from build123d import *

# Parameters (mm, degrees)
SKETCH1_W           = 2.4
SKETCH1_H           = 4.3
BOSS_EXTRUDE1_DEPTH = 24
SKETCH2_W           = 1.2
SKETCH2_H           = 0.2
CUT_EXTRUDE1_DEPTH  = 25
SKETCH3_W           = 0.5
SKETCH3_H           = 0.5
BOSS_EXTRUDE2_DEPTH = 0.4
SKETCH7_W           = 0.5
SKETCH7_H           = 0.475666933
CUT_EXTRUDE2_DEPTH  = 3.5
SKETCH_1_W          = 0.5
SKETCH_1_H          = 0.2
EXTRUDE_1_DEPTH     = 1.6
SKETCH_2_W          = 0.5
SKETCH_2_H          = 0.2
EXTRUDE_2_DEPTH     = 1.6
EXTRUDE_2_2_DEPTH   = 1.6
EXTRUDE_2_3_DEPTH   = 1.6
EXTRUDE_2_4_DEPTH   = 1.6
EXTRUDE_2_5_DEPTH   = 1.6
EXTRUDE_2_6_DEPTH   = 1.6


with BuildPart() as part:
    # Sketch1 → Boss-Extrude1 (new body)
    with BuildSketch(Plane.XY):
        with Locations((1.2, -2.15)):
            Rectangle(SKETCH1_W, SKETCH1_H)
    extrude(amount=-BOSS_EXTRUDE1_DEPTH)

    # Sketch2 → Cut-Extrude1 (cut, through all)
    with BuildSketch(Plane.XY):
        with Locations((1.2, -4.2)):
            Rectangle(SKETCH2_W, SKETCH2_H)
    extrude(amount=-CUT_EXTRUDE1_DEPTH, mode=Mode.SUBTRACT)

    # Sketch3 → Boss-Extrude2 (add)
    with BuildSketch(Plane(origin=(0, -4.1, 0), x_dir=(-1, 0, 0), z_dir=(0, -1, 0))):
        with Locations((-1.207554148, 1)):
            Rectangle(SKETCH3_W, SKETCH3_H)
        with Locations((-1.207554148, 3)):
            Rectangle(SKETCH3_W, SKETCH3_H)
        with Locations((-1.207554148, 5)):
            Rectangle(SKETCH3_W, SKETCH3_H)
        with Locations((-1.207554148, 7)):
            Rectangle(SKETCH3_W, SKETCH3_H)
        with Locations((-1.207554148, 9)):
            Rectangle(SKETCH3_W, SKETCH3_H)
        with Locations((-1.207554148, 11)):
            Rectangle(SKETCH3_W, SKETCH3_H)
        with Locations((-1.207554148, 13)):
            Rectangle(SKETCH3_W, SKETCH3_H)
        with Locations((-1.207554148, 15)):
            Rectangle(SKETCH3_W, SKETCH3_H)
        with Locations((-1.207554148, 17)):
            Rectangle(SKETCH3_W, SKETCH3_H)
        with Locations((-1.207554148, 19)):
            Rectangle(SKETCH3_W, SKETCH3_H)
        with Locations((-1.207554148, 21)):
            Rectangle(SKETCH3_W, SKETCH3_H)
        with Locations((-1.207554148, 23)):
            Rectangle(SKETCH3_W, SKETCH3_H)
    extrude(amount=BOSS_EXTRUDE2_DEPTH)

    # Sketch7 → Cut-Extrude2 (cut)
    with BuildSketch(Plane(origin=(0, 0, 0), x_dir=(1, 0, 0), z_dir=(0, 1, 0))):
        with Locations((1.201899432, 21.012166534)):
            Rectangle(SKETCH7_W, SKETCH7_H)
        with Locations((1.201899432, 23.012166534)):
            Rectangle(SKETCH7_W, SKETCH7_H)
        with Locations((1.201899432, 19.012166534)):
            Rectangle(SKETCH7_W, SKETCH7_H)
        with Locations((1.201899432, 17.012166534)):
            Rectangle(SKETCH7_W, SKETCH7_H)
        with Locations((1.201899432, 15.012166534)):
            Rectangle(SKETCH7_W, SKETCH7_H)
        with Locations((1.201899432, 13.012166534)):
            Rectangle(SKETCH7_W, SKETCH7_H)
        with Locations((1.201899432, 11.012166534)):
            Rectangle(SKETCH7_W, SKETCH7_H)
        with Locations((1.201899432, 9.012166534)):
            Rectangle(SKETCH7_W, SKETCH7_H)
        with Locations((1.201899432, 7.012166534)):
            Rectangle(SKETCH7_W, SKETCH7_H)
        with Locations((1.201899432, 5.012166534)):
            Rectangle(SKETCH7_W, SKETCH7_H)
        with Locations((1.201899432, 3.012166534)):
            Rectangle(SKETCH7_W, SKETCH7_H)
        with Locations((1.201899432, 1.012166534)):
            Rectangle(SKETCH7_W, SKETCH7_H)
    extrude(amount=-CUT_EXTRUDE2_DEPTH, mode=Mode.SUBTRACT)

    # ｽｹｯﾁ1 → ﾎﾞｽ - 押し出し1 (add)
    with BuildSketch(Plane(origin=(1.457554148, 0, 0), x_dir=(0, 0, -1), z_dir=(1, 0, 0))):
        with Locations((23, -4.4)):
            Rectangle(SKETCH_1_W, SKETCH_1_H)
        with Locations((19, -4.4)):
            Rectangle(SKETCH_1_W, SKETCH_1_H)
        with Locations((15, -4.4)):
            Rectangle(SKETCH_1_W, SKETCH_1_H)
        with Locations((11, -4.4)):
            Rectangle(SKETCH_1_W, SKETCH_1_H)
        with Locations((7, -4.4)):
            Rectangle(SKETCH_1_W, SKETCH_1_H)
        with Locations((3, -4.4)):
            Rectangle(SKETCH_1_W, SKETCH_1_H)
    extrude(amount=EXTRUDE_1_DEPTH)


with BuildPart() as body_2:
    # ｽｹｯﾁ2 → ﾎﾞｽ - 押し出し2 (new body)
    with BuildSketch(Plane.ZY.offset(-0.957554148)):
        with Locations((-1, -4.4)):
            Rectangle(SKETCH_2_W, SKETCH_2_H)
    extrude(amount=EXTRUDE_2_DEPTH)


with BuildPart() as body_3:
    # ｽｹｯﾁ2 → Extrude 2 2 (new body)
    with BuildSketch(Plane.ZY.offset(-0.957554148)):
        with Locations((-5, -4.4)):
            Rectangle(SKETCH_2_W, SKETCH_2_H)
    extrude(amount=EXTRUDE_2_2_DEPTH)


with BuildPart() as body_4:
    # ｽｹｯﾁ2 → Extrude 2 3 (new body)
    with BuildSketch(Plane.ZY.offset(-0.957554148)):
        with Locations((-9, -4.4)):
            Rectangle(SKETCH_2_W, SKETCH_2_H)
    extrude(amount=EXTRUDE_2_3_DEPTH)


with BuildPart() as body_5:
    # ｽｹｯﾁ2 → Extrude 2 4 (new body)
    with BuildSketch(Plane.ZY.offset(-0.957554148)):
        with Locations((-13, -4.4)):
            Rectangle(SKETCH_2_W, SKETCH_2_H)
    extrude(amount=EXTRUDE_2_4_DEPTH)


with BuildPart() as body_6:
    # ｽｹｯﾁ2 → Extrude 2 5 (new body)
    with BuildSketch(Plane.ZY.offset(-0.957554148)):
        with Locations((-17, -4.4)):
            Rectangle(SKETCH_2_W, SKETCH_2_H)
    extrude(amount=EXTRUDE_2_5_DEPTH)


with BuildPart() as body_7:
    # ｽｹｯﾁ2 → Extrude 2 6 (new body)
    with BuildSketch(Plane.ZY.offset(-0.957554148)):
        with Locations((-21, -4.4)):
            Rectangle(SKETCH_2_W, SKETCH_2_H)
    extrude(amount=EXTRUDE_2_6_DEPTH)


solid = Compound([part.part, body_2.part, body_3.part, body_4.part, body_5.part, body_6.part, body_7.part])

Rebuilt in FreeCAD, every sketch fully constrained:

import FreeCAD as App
import Part
import Sketcher
Q = App.Units.Quantity

doc = App.newDocument("Part")
params = doc.addObject("Spreadsheet::Sheet", "Params")
for row, (alias, value) in enumerate([
    ("sketch1_width", "2.4 mm"),
    ("sketch1_height", "4.3 mm"),
    ("pad1_length", "24 mm"),
    ("sketch2_width", "1.2 mm"),
    ("sketch2_height", "0.2 mm"),
    ("sketch3_width", "0.5 mm"),
    ("pad2_length", "0.4 mm"),
    ("sketch4_width", "0.5 mm"),
    ("pocket2_length", "3.5 mm"),
    ("sketch5_width", "0.2 mm"),
    ("sketch5_height", "0.5 mm"),
    ("pad3_length", "1.6 mm"),
    ("sketch6_width", "0.2 mm"),
    ("sketch6_height", "0.5 mm"),
    ("pad4_length", "1.6 mm"),
    ("sketch7_width", "0.2 mm"),
    ("sketch7_height", "0.5 mm"),
    ("pad5_length", "1.6 mm"),
    ("sketch8_width", "0.2 mm"),
    ("sketch8_height", "0.5 mm"),
    ("pad6_length", "1.6 mm"),
    ("sketch9_width", "0.2 mm"),
    ("sketch9_height", "0.5 mm"),
    ("pad7_length", "1.6 mm"),
    ("sketch10_width", "0.2 mm"),
    ("sketch10_height", "0.5 mm"),
    ("pad8_length", "1.6 mm"),
    ("sketch11_width", "0.2 mm"),
    ("sketch11_height", "0.5 mm"),
    ("pad9_length", "1.6 mm"),
], start=1):
    params.set(f"A{row}", alias)
    params.set(f"B{row}", "=" + value)
    params.setAlias(f"B{row}", alias)

body = doc.addObject("PartDesign::Body", "Body")

# Sketch on XY plane
sketch1 = body.newObject("Sketcher::SketchObject", "Sketch")
sketch1.AttachmentSupport = (doc.getObject("XY_Plane"), [""])
sketch1.MapMode = "FlatFace"
sketch1.addGeometry([
    Part.LineSegment(App.Vector(0, 0, 0), App.Vector(0, -4.3, 0)),
    Part.LineSegment(App.Vector(0, -4.3, 0), App.Vector(2.4, -4.3, 0)),
    Part.LineSegment(App.Vector(2.4, -4.3, 0), App.Vector(2.4, 0, 0)),
    Part.LineSegment(App.Vector(2.4, 0, 0), App.Vector(0, 0, 0)),
], False)
sketch1.addConstraint([
    Sketcher.Constraint("Coincident", 0, 2, 1, 1),
    Sketcher.Constraint("Coincident", 1, 2, 2, 1),
    Sketcher.Constraint("Coincident", 2, 2, 3, 1),
    Sketcher.Constraint("Coincident", 3, 2, 0, 1),
    Sketcher.Constraint("Vertical", 0),
    Sketcher.Constraint("Horizontal", 1),
    Sketcher.Constraint("Vertical", 2),
    Sketcher.Constraint("Horizontal", 3),
    Sketcher.Constraint("Coincident", 3, 2, -1, 1),
    Sketcher.Constraint("DistanceX", 1, 1, 1, 2, Q("2.4 mm")),
    Sketcher.Constraint("DistanceY", 0, 2, 0, 1, Q("4.3 mm")),
])
sketch1.setExpression("Constraints[9]", "Params.sketch1_width")
sketch1.setExpression("Constraints[10]", "Params.sketch1_height")
pad1 = body.newObject("PartDesign::Pad", "Pad")
pad1.Profile = sketch1
pad1.setExpression("Length", "Params.pad1_length")
pad1.Reversed = True

# Sketch on XY plane
sketch2 = body.newObject("Sketcher::SketchObject", "Sketch001")
sketch2.AttachmentSupport = (doc.getObject("XY_Plane"), [""])
sketch2.MapMode = "FlatFace"
sketch2.addGeometry([
    Part.LineSegment(App.Vector(0.6, -4.1, 0), App.Vector(0.6, -4.3, 0)),
    Part.LineSegment(App.Vector(0.6, -4.3, 0), App.Vector(1.8, -4.3, 0)),
    Part.LineSegment(App.Vector(1.8, -4.3, 0), App.Vector(1.8, -4.1, 0)),
    Part.LineSegment(App.Vector(1.8, -4.1, 0), App.Vector(0.6, -4.1, 0)),
], False)
sketch2.addConstraint([
    Sketcher.Constraint("Coincident", 0, 2, 1, 1),
    Sketcher.Constraint("Coincident", 1, 2, 2, 1),
    Sketcher.Constraint("Coincident", 2, 2, 3, 1),
    Sketcher.Constraint("Coincident", 3, 2, 0, 1),
    Sketcher.Constraint("Vertical", 0),
    Sketcher.Constraint("Horizontal", 1),
    Sketcher.Constraint("Vertical", 2),
    Sketcher.Constraint("Horizontal", 3),
    Sketcher.Constraint("DistanceX", 1, 1, 1, 2, Q("1.2 mm")),
    Sketcher.Constraint("DistanceY", 0, 2, 0, 1, Q("0.2 mm")),
    Sketcher.Constraint("DistanceX", -1, 1, 0, 2, Q("0.6 mm")),
    Sketcher.Constraint("DistanceY", 0, 2, -1, 1, Q("4.3 mm")),
])
sketch2.setExpression("Constraints[8]", "Params.sketch2_width")
sketch2.setExpression("Constraints[9]", "Params.sketch2_height")
pocket1 = body.newObject("PartDesign::Pocket", "Pocket")
pocket1.Profile = sketch2
pocket1.Type = "ThroughAll"

# Sketch on XZ plane
sketch3 = body.newObject("Sketcher::SketchObject", "Sketch002")
sketch3.AttachmentSupport = (doc.getObject("XZ_Plane"), [""])
sketch3.MapMode = "FlatFace"
sketch3.AttachmentOffset = App.Placement(App.Vector(0, 0, 4.1), App.Rotation())
sketch3.addGeometry([
    Part.LineSegment(App.Vector(1.457554, -1.25, 0), App.Vector(1.457554, -0.75, 0)),  # 0
    Part.LineSegment(App.Vector(1.457554, -0.75, 0), App.Vector(0.957554, -0.75, 0)),  # 1
    Part.LineSegment(App.Vector(0.957554, -0.75, 0), App.Vector(0.957554, -1.25, 0)),  # 2
    Part.LineSegment(App.Vector(0.957554, -1.25, 0), App.Vector(1.457554, -1.25, 0)),  # 3
    Part.LineSegment(App.Vector(1.457554, -3.25, 0), App.Vector(1.457554, -2.75, 0)),  # 4
    Part.LineSegment(App.Vector(1.457554, -2.75, 0), App.Vector(0.957554, -2.75, 0)),  # 5
    Part.LineSegment(App.Vector(0.957554, -2.75, 0), App.Vector(0.957554, -3.25, 0)),  # 6
    Part.LineSegment(App.Vector(0.957554, -3.25, 0), App.Vector(1.457554, -3.25, 0)),  # 7
    Part.LineSegment(App.Vector(1.457554, -5.25, 0), App.Vector(1.457554, -4.75, 0)),  # 8
    Part.LineSegment(App.Vector(1.457554, -4.75, 0), App.Vector(0.957554, -4.75, 0)),  # 9
    Part.LineSegment(App.Vector(0.957554, -4.75, 0), App.Vector(0.957554, -5.25, 0)),  # 10
    Part.LineSegment(App.Vector(0.957554, -5.25, 0), App.Vector(1.457554, -5.25, 0)),  # 11
    Part.LineSegment(App.Vector(1.457554, -7.25, 0), App.Vector(1.457554, -6.75, 0)),  # 12
    Part.LineSegment(App.Vector(1.457554, -6.75, 0), App.Vector(0.957554, -6.75, 0)),  # 13
    Part.LineSegment(App.Vector(0.957554, -6.75, 0), App.Vector(0.957554, -7.25, 0)),  # 14
    Part.LineSegment(App.Vector(0.957554, -7.25, 0), App.Vector(1.457554, -7.25, 0)),  # 15
    Part.LineSegment(App.Vector(1.457554, -9.25, 0), App.Vector(1.457554, -8.75, 0)),  # 16
    Part.LineSegment(App.Vector(1.457554, -8.75, 0), App.Vector(0.957554, -8.75, 0)),  # 17
    Part.LineSegment(App.Vector(0.957554, -8.75, 0), App.Vector(0.957554, -9.25, 0)),  # 18
    Part.LineSegment(App.Vector(0.957554, -9.25, 0), App.Vector(1.457554, -9.25, 0)),  # 19
    Part.LineSegment(App.Vector(1.457554, -11.25, 0), App.Vector(1.457554, -10.75, 0)),  # 20
    Part.LineSegment(App.Vector(1.457554, -10.75, 0), App.Vector(0.957554, -10.75, 0)),  # 21
    Part.LineSegment(App.Vector(0.957554, -10.75, 0), App.Vector(0.957554, -11.25, 0)),  # 22
    Part.LineSegment(App.Vector(0.957554, -11.25, 0), App.Vector(1.457554, -11.25, 0)),  # 23
    Part.LineSegment(App.Vector(1.457554, -13.25, 0), App.Vector(1.457554, -12.75, 0)),  # 24
    Part.LineSegment(App.Vector(1.457554, -12.75, 0), App.Vector(0.957554, -12.75, 0)),  # 25
    Part.LineSegment(App.Vector(0.957554, -12.75, 0), App.Vector(0.957554, -13.25, 0)),  # 26
    Part.LineSegment(App.Vector(0.957554, -13.25, 0), App.Vector(1.457554, -13.25, 0)),  # 27
    Part.LineSegment(App.Vector(1.457554, -15.25, 0), App.Vector(1.457554, -14.75, 0)),  # 28
    Part.LineSegment(App.Vector(1.457554, -14.75, 0), App.Vector(0.957554, -14.75, 0)),  # 29
    Part.LineSegment(App.Vector(0.957554, -14.75, 0), App.Vector(0.957554, -15.25, 0)),  # 30
    Part.LineSegment(App.Vector(0.957554, -15.25, 0), App.Vector(1.457554, -15.25, 0)),  # 31
    Part.LineSegment(App.Vector(1.457554, -17.25, 0), App.Vector(1.457554, -16.75, 0)),  # 32
    Part.LineSegment(App.Vector(1.457554, -16.75, 0), App.Vector(0.957554, -16.75, 0)),  # 33
    Part.LineSegment(App.Vector(0.957554, -16.75, 0), App.Vector(0.957554, -17.25, 0)),  # 34
    Part.LineSegment(App.Vector(0.957554, -17.25, 0), App.Vector(1.457554, -17.25, 0)),  # 35
    Part.LineSegment(App.Vector(1.457554, -19.25, 0), App.Vector(1.457554, -18.75, 0)),  # 36
    Part.LineSegment(App.Vector(1.457554, -18.75, 0), App.Vector(0.957554, -18.75, 0)),  # 37
    Part.LineSegment(App.Vector(0.957554, -18.75, 0), App.Vector(0.957554, -19.25, 0)),  # 38
    Part.LineSegment(App.Vector(0.957554, -19.25, 0), App.Vector(1.457554, -19.25, 0)),  # 39
    Part.LineSegment(App.Vector(1.457554, -21.25, 0), App.Vector(1.457554, -20.75, 0)),  # 40
    Part.LineSegment(App.Vector(1.457554, -20.75, 0), App.Vector(0.957554, -20.75, 0)),  # 41
    Part.LineSegment(App.Vector(0.957554, -20.75, 0), App.Vector(0.957554, -21.25, 0)),  # 42
    Part.LineSegment(App.Vector(0.957554, -21.25, 0), App.Vector(1.457554, -21.25, 0)),  # 43
    Part.LineSegment(App.Vector(1.457554, -23.25, 0), App.Vector(1.457554, -22.75, 0)),  # 44
    Part.LineSegment(App.Vector(1.457554, -22.75, 0), App.Vector(0.957554, -22.75, 0)),  # 45
    Part.LineSegment(App.Vector(0.957554, -22.75, 0), App.Vector(0.957554, -23.25, 0)),  # 46
    Part.LineSegment(App.Vector(0.957554, -23.25, 0), App.Vector(1.457554, -23.25, 0)),  # 47
], False)
sketch3.addConstraint([
    Sketcher.Constraint("Coincident", 0, 2, 1, 1),
    Sketcher.Constraint("Coincident", 1, 2, 2, 1),
    Sketcher.Constraint("Coincident", 2, 2, 3, 1),
    Sketcher.Constraint("Coincident", 3, 2, 0, 1),
    Sketcher.Constraint("Coincident", 4, 2, 5, 1),
    Sketcher.Constraint("Coincident", 5, 2, 6, 1),
    Sketcher.Constraint("Coincident", 6, 2, 7, 1),
    Sketcher.Constraint("Coincident", 7, 2, 4, 1),
    Sketcher.Constraint("Coincident", 8, 2, 9, 1),
    Sketcher.Constraint("Coincident", 9, 2, 10, 1),
    Sketcher.Constraint("Coincident", 10, 2, 11, 1),
    Sketcher.Constraint("Coincident", 11, 2, 8, 1),
    Sketcher.Constraint("Coincident", 12, 2, 13, 1),
    Sketcher.Constraint("Coincident", 13, 2, 14, 1),
    Sketcher.Constraint("Coincident", 14, 2, 15, 1),
    Sketcher.Constraint("Coincident", 15, 2, 12, 1),
    Sketcher.Constraint("Coincident", 16, 2, 17, 1),
    Sketcher.Constraint("Coincident", 17, 2, 18, 1),
    Sketcher.Constraint("Coincident", 18, 2, 19, 1),
    Sketcher.Constraint("Coincident", 19, 2, 16, 1),
    Sketcher.Constraint("Coincident", 20, 2, 21, 1),
    Sketcher.Constraint("Coincident", 21, 2, 22, 1),
    Sketcher.Constraint("Coincident", 22, 2, 23, 1),
    Sketcher.Constraint("Coincident", 23, 2, 20, 1),
    Sketcher.Constraint("Coincident", 24, 2, 25, 1),
    Sketcher.Constraint("Coincident", 25, 2, 26, 1),
    Sketcher.Constraint("Coincident", 26, 2, 27, 1),
    Sketcher.Constraint("Coincident", 27, 2, 24, 1),
    Sketcher.Constraint("Coincident", 28, 2, 29, 1),
    Sketcher.Constraint("Coincident", 29, 2, 30, 1),
    Sketcher.Constraint("Coincident", 30, 2, 31, 1),
    Sketcher.Constraint("Coincident", 31, 2, 28, 1),
    Sketcher.Constraint("Coincident", 32, 2, 33, 1),
    Sketcher.Constraint("Coincident", 33, 2, 34, 1),
    Sketcher.Constraint("Coincident", 34, 2, 35, 1),
    Sketcher.Constraint("Coincident", 35, 2, 32, 1),
    Sketcher.Constraint("Coincident", 36, 2, 37, 1),
    Sketcher.Constraint("Coincident", 37, 2, 38, 1),
    Sketcher.Constraint("Coincident", 38, 2, 39, 1),
    Sketcher.Constraint("Coincident", 39, 2, 36, 1),
    Sketcher.Constraint("Coincident", 40, 2, 41, 1),
    Sketcher.Constraint("Coincident", 41, 2, 42, 1),
    Sketcher.Constraint("Coincident", 42, 2, 43, 1),
    Sketcher.Constraint("Coincident", 43, 2, 40, 1),
    Sketcher.Constraint("Coincident", 44, 2, 45, 1),
    Sketcher.Constraint("Coincident", 45, 2, 46, 1),
    Sketcher.Constraint("Coincident", 46, 2, 47, 1),
    Sketcher.Constraint("Coincident", 47, 2, 44, 1),
    Sketcher.Constraint("Vertical", 0),
    Sketcher.Constraint("Horizontal", 1),
    Sketcher.Constraint("Vertical", 2),
    Sketcher.Constraint("Horizontal", 3),
    Sketcher.Constraint("Vertical", 4),
    Sketcher.Constraint("Horizontal", 5),
    Sketcher.Constraint("Vertical", 6),
    Sketcher.Constraint("Horizontal", 7),
    Sketcher.Constraint("Vertical", 8),
    Sketcher.Constraint("Horizontal", 9),
    Sketcher.Constraint("Vertical", 10),
    Sketcher.Constraint("Horizontal", 11),
    Sketcher.Constraint("Vertical", 12),
    Sketcher.Constraint("Horizontal", 13),
    Sketcher.Constraint("Vertical", 14),
    Sketcher.Constraint("Horizontal", 15),
    Sketcher.Constraint("Vertical", 16),
    Sketcher.Constraint("Horizontal", 17),
    Sketcher.Constraint("Vertical", 18),
    Sketcher.Constraint("Horizontal", 19),
    Sketcher.Constraint("Vertical", 20),
    Sketcher.Constraint("Horizontal", 21),
    Sketcher.Constraint("Vertical", 22),
    Sketcher.Constraint("Horizontal", 23),
    Sketcher.Constraint("Vertical", 24),
    Sketcher.Constraint("Horizontal", 25),
    Sketcher.Constraint("Vertical", 26),
    Sketcher.Constraint("Horizontal", 27),
    Sketcher.Constraint("Vertical", 28),
    Sketcher.Constraint("Horizontal", 29),
    Sketcher.Constraint("Vertical", 30),
    Sketcher.Constraint("Horizontal", 31),
    Sketcher.Constraint("Vertical", 32),
    Sketcher.Constraint("Horizontal", 33),
    Sketcher.Constraint("Vertical", 34),
    Sketcher.Constraint("Horizontal", 35),
    Sketcher.Constraint("Vertical", 36),
    Sketcher.Constraint("Horizontal", 37),
    Sketcher.Constraint("Vertical", 38),
    Sketcher.Constraint("Horizontal", 39),
    Sketcher.Constraint("Vertical", 40),
    Sketcher.Constraint("Horizontal", 41),
    Sketcher.Constraint("Vertical", 42),
    Sketcher.Constraint("Horizontal", 43),
    Sketcher.Constraint("Vertical", 44),
    Sketcher.Constraint("Horizontal", 45),
    Sketcher.Constraint("Vertical", 46),
    Sketcher.Constraint("Horizontal", 47),
    Sketcher.Constraint("Vertical", 3, 2, 4, 2),
    Sketcher.Constraint("Vertical", 2, 2, 5, 2),
    Sketcher.Constraint("Vertical", 7, 2, 8, 2),
    Sketcher.Constraint("Vertical", 6, 2, 9, 2),
    Sketcher.Constraint("Vertical", 11, 2, 12, 2),
    Sketcher.Constraint("Vertical", 10, 2, 13, 2),
    Sketcher.Constraint("Vertical", 15, 2, 16, 2),
    Sketcher.Constraint("Vertical", 14, 2, 17, 2),
    Sketcher.Constraint("Vertical", 19, 2, 20, 2),
    Sketcher.Constraint("Vertical", 18, 2, 21, 2),
    Sketcher.Constraint("Vertical", 23, 2, 24, 2),
    Sketcher.Constraint("Vertical", 22, 2, 25, 2),
    Sketcher.Constraint("Vertical", 27, 2, 28, 2),
    Sketcher.Constraint("Vertical", 26, 2, 29, 2),
    Sketcher.Constraint("Vertical", 31, 2, 32, 2),
    Sketcher.Constraint("Vertical", 30, 2, 33, 2),
    Sketcher.Constraint("Vertical", 35, 2, 36, 2),
    Sketcher.Constraint("Vertical", 34, 2, 37, 2),
    Sketcher.Constraint("Vertical", 39, 2, 40, 2),
    Sketcher.Constraint("Vertical", 38, 2, 41, 2),
    Sketcher.Constraint("Vertical", 43, 2, 44, 2),
    Sketcher.Constraint("Vertical", 42, 2, 45, 2),
    Sketcher.Constraint("Equal", 47, 0),
    Sketcher.Constraint("Equal", 2, 4),
    Sketcher.Constraint("Equal", 6, 8),
    Sketcher.Constraint("Equal", 10, 12),
    Sketcher.Constraint("Equal", 14, 16),
    Sketcher.Constraint("Equal", 18, 20),
    Sketcher.Constraint("Equal", 22, 24),
    Sketcher.Constraint("Equal", 26, 28),
    Sketcher.Constraint("Equal", 30, 32),
    Sketcher.Constraint("Equal", 34, 36),
    Sketcher.Constraint("Equal", 38, 40),
    Sketcher.Constraint("Equal", 42, 44),
    Sketcher.Constraint("DistanceX", 1, 2, 1, 1, Q("0.5 mm")),
    Sketcher.Constraint("DistanceY", 4, 2, 0, 2, Q("2 mm")),
    Sketcher.Constraint("DistanceY", 8, 2, 4, 2, Q("2 mm")),
    Sketcher.Constraint("DistanceY", 12, 2, 8, 2, Q("2 mm")),
    Sketcher.Constraint("DistanceY", 16, 2, 12, 2, Q("2 mm")),
    Sketcher.Constraint("DistanceY", 20, 2, 16, 2, Q("2 mm")),
    Sketcher.Constraint("DistanceY", 24, 2, 20, 2, Q("2 mm")),
    Sketcher.Constraint("DistanceY", 28, 2, 24, 2, Q("2 mm")),
    Sketcher.Constraint("DistanceY", 32, 2, 28, 2, Q("2 mm")),
    Sketcher.Constraint("DistanceY", 36, 2, 32, 2, Q("2 mm")),
    Sketcher.Constraint("DistanceY", 40, 2, 36, 2, Q("2 mm")),
    Sketcher.Constraint("DistanceY", 44, 2, 40, 2, Q("2 mm")),
    Sketcher.Constraint("DistanceY", 0, 2, -1, 1, Q("0.75 mm")),
    Sketcher.Constraint("DistanceX", -1, 1, 0, 2, Q("1.457554 mm")),
])
sketch3.setExpression("Constraints[130]", "Params.sketch3_width")
pad2 = body.newObject("PartDesign::Pad", "Pad001")
pad2.Profile = sketch3
pad2.setExpression("Length", "Params.pad2_length")

# Sketch on XZ plane
sketch4 = body.newObject("Sketcher::SketchObject", "Sketch003")
sketch4.AttachmentSupport = (doc.getObject("XZ_Plane"), [""])
sketch4.MapMode = "FlatFace"
sketch4.addGeometry([
    Part.LineSegment(App.Vector(0.951899, -21.25, 0), App.Vector(0.951899, -20.774333, 0)),  # 0
    Part.LineSegment(App.Vector(0.951899, -20.774333, 0), App.Vector(1.451899, -20.774333, 0)),  # 1
    Part.LineSegment(App.Vector(1.451899, -20.774333, 0), App.Vector(1.451899, -21.25, 0)),  # 2
    Part.LineSegment(App.Vector(1.451899, -21.25, 0), App.Vector(0.951899, -21.25, 0)),  # 3
    Part.LineSegment(App.Vector(0.951899, -23.25, 0), App.Vector(0.951899, -22.774333, 0)),  # 4
    Part.LineSegment(App.Vector(0.951899, -22.774333, 0), App.Vector(1.451899, -22.774333, 0)),  # 5
    Part.LineSegment(App.Vector(1.451899, -22.774333, 0), App.Vector(1.451899, -23.25, 0)),  # 6
    Part.LineSegment(App.Vector(1.451899, -23.25, 0), App.Vector(0.951899, -23.25, 0)),  # 7
    Part.LineSegment(App.Vector(0.951899, -19.25, 0), App.Vector(0.951899, -18.774333, 0)),  # 8
    Part.LineSegment(App.Vector(0.951899, -18.774333, 0), App.Vector(1.451899, -18.774333, 0)),  # 9
    Part.LineSegment(App.Vector(1.451899, -18.774333, 0), App.Vector(1.451899, -19.25, 0)),  # 10
    Part.LineSegment(App.Vector(1.451899, -19.25, 0), App.Vector(0.951899, -19.25, 0)),  # 11
    Part.LineSegment(App.Vector(0.951899, -17.25, 0), App.Vector(0.951899, -16.774333, 0)),  # 12
    Part.LineSegment(App.Vector(0.951899, -16.774333, 0), App.Vector(1.451899, -16.774333, 0)),  # 13
    Part.LineSegment(App.Vector(1.451899, -16.774333, 0), App.Vector(1.451899, -17.25, 0)),  # 14
    Part.LineSegment(App.Vector(1.451899, -17.25, 0), App.Vector(0.951899, -17.25, 0)),  # 15
    Part.LineSegment(App.Vector(0.951899, -15.25, 0), App.Vector(0.951899, -14.774333, 0)),  # 16
    Part.LineSegment(App.Vector(0.951899, -14.774333, 0), App.Vector(1.451899, -14.774333, 0)),  # 17
    Part.LineSegment(App.Vector(1.451899, -14.774333, 0), App.Vector(1.451899, -15.25, 0)),  # 18
    Part.LineSegment(App.Vector(1.451899, -15.25, 0), App.Vector(0.951899, -15.25, 0)),  # 19
    Part.LineSegment(App.Vector(0.951899, -13.25, 0), App.Vector(0.951899, -12.774333, 0)),  # 20
    Part.LineSegment(App.Vector(0.951899, -12.774333, 0), App.Vector(1.451899, -12.774333, 0)),  # 21
    Part.LineSegment(App.Vector(1.451899, -12.774333, 0), App.Vector(1.451899, -13.25, 0)),  # 22
    Part.LineSegment(App.Vector(1.451899, -13.25, 0), App.Vector(0.951899, -13.25, 0)),  # 23
    Part.LineSegment(App.Vector(0.951899, -11.25, 0), App.Vector(0.951899, -10.774333, 0)),  # 24
    Part.LineSegment(App.Vector(0.951899, -10.774333, 0), App.Vector(1.451899, -10.774333, 0)),  # 25
    Part.LineSegment(App.Vector(1.451899, -10.774333, 0), App.Vector(1.451899, -11.25, 0)),  # 26
    Part.LineSegment(App.Vector(1.451899, -11.25, 0), App.Vector(0.951899, -11.25, 0)),  # 27
    Part.LineSegment(App.Vector(0.951899, -9.25, 0), App.Vector(0.951899, -8.774333, 0)),  # 28
    Part.LineSegment(App.Vector(0.951899, -8.774333, 0), App.Vector(1.451899, -8.774333, 0)),  # 29
    Part.LineSegment(App.Vector(1.451899, -8.774333, 0), App.Vector(1.451899, -9.25, 0)),  # 30
    Part.LineSegment(App.Vector(1.451899, -9.25, 0), App.Vector(0.951899, -9.25, 0)),  # 31
    Part.LineSegment(App.Vector(0.951899, -7.25, 0), App.Vector(0.951899, -6.774333, 0)),  # 32
    Part.LineSegment(App.Vector(0.951899, -6.774333, 0), App.Vector(1.451899, -6.774333, 0)),  # 33
    Part.LineSegment(App.Vector(1.451899, -6.774333, 0), App.Vector(1.451899, -7.25, 0)),  # 34
    Part.LineSegment(App.Vector(1.451899, -7.25, 0), App.Vector(0.951899, -7.25, 0)),  # 35
    Part.LineSegment(App.Vector(0.951899, -5.25, 0), App.Vector(0.951899, -4.774333, 0)),  # 36
    Part.LineSegment(App.Vector(0.951899, -4.774333, 0), App.Vector(1.451899, -4.774333, 0)),  # 37
    Part.LineSegment(App.Vector(1.451899, -4.774333, 0), App.Vector(1.451899, -5.25, 0)),  # 38
    Part.LineSegment(App.Vector(1.451899, -5.25, 0), App.Vector(0.951899, -5.25, 0)),  # 39
    Part.LineSegment(App.Vector(0.951899, -3.25, 0), App.Vector(0.951899, -2.774333, 0)),  # 40
    Part.LineSegment(App.Vector(0.951899, -2.774333, 0), App.Vector(1.451899, -2.774333, 0)),  # 41
    Part.LineSegment(App.Vector(1.451899, -2.774333, 0), App.Vector(1.451899, -3.25, 0)),  # 42
    Part.LineSegment(App.Vector(1.451899, -3.25, 0), App.Vector(0.951899, -3.25, 0)),  # 43
    Part.LineSegment(App.Vector(0.951899, -1.25, 0), App.Vector(0.951899, -0.774333, 0)),  # 44
    Part.LineSegment(App.Vector(0.951899, -0.774333, 0), App.Vector(1.451899, -0.774333, 0)),  # 45
    Part.LineSegment(App.Vector(1.451899, -0.774333, 0), App.Vector(1.451899, -1.25, 0)),  # 46
    Part.LineSegment(App.Vector(1.451899, -1.25, 0), App.Vector(0.951899, -1.25, 0)),  # 47
], False)
sketch4.addConstraint([
    Sketcher.Constraint("Coincident", 0, 2, 1, 1),
    Sketcher.Constraint("Coincident", 1, 2, 2, 1),
    Sketcher.Constraint("Coincident", 2, 2, 3, 1),
    Sketcher.Constraint("Coincident", 3, 2, 0, 1),
    Sketcher.Constraint("Coincident", 4, 2, 5, 1),
    Sketcher.Constraint("Coincident", 5, 2, 6, 1),
    Sketcher.Constraint("Coincident", 6, 2, 7, 1),
    Sketcher.Constraint("Coincident", 7, 2, 4, 1),
    Sketcher.Constraint("Coincident", 8, 2, 9, 1),
    Sketcher.Constraint("Coincident", 9, 2, 10, 1),
    Sketcher.Constraint("Coincident", 10, 2, 11, 1),
    Sketcher.Constraint("Coincident", 11, 2, 8, 1),
    Sketcher.Constraint("Coincident", 12, 2, 13, 1),
    Sketcher.Constraint("Coincident", 13, 2, 14, 1),
    Sketcher.Constraint("Coincident", 14, 2, 15, 1),
    Sketcher.Constraint("Coincident", 15, 2, 12, 1),
    Sketcher.Constraint("Coincident", 16, 2, 17, 1),
    Sketcher.Constraint("Coincident", 17, 2, 18, 1),
    Sketcher.Constraint("Coincident", 18, 2, 19, 1),
    Sketcher.Constraint("Coincident", 19, 2, 16, 1),
    Sketcher.Constraint("Coincident", 20, 2, 21, 1),
    Sketcher.Constraint("Coincident", 21, 2, 22, 1),
    Sketcher.Constraint("Coincident", 22, 2, 23, 1),
    Sketcher.Constraint("Coincident", 23, 2, 20, 1),
    Sketcher.Constraint("Coincident", 24, 2, 25, 1),
    Sketcher.Constraint("Coincident", 25, 2, 26, 1),
    Sketcher.Constraint("Coincident", 26, 2, 27, 1),
    Sketcher.Constraint("Coincident", 27, 2, 24, 1),
    Sketcher.Constraint("Coincident", 28, 2, 29, 1),
    Sketcher.Constraint("Coincident", 29, 2, 30, 1),
    Sketcher.Constraint("Coincident", 30, 2, 31, 1),
    Sketcher.Constraint("Coincident", 31, 2, 28, 1),
    Sketcher.Constraint("Coincident", 32, 2, 33, 1),
    Sketcher.Constraint("Coincident", 33, 2, 34, 1),
    Sketcher.Constraint("Coincident", 34, 2, 35, 1),
    Sketcher.Constraint("Coincident", 35, 2, 32, 1),
    Sketcher.Constraint("Coincident", 36, 2, 37, 1),
    Sketcher.Constraint("Coincident", 37, 2, 38, 1),
    Sketcher.Constraint("Coincident", 38, 2, 39, 1),
    Sketcher.Constraint("Coincident", 39, 2, 36, 1),
    Sketcher.Constraint("Coincident", 40, 2, 41, 1),
    Sketcher.Constraint("Coincident", 41, 2, 42, 1),
    Sketcher.Constraint("Coincident", 42, 2, 43, 1),
    Sketcher.Constraint("Coincident", 43, 2, 40, 1),
    Sketcher.Constraint("Coincident", 44, 2, 45, 1),
    Sketcher.Constraint("Coincident", 45, 2, 46, 1),
    Sketcher.Constraint("Coincident", 46, 2, 47, 1),
    Sketcher.Constraint("Coincident", 47, 2, 44, 1),
    Sketcher.Constraint("Vertical", 0),
    Sketcher.Constraint("Horizontal", 1),
    Sketcher.Constraint("Vertical", 2),
    Sketcher.Constraint("Horizontal", 3),
    Sketcher.Constraint("Vertical", 4),
    Sketcher.Constraint("Horizontal", 5),
    Sketcher.Constraint("Vertical", 6),
    Sketcher.Constraint("Horizontal", 7),
    Sketcher.Constraint("Vertical", 8),
    Sketcher.Constraint("Horizontal", 9),
    Sketcher.Constraint("Vertical", 10),
    Sketcher.Constraint("Horizontal", 11),
    Sketcher.Constraint("Vertical", 12),
    Sketcher.Constraint("Horizontal", 13),
    Sketcher.Constraint("Vertical", 14),
    Sketcher.Constraint("Horizontal", 15),
    Sketcher.Constraint("Vertical", 16),
    Sketcher.Constraint("Horizontal", 17),
    Sketcher.Constraint("Vertical", 18),
    Sketcher.Constraint("Horizontal", 19),
    Sketcher.Constraint("Vertical", 20),
    Sketcher.Constraint("Horizontal", 21),
    Sketcher.Constraint("Vertical", 22),
    Sketcher.Constraint("Horizontal", 23),
    Sketcher.Constraint("Vertical", 24),
    Sketcher.Constraint("Horizontal", 25),
    Sketcher.Constraint("Vertical", 26),
    Sketcher.Constraint("Horizontal", 27),
    Sketcher.Constraint("Vertical", 28),
    Sketcher.Constraint("Horizontal", 29),
    Sketcher.Constraint("Vertical", 30),
    Sketcher.Constraint("Horizontal", 31),
    Sketcher.Constraint("Vertical", 32),
    Sketcher.Constraint("Horizontal", 33),
    Sketcher.Constraint("Vertical", 34),
    Sketcher.Constraint("Horizontal", 35),
    Sketcher.Constraint("Vertical", 36),
    Sketcher.Constraint("Horizontal", 37),
    Sketcher.Constraint("Vertical", 38),
    Sketcher.Constraint("Horizontal", 39),
    Sketcher.Constraint("Vertical", 40),
    Sketcher.Constraint("Horizontal", 41),
    Sketcher.Constraint("Vertical", 42),
    Sketcher.Constraint("Horizontal", 43),
    Sketcher.Constraint("Vertical", 44),
    Sketcher.Constraint("Horizontal", 45),
    Sketcher.Constraint("Vertical", 46),
    Sketcher.Constraint("Horizontal", 47),
    Sketcher.Constraint("Vertical", 3, 2, 4, 2),
    Sketcher.Constraint("Vertical", 2, 2, 5, 2),
    Sketcher.Constraint("Vertical", 7, 2, 8, 2),
    Sketcher.Constraint("Vertical", 6, 2, 9, 2),
    Sketcher.Constraint("Vertical", 11, 2, 12, 2),
    Sketcher.Constraint("Vertical", 10, 2, 13, 2),
    Sketcher.Constraint("Vertical", 15, 2, 16, 2),
    Sketcher.Constraint("Vertical", 14, 2, 17, 2),
    Sketcher.Constraint("Vertical", 19, 2, 20, 2),
    Sketcher.Constraint("Vertical", 18, 2, 21, 2),
    Sketcher.Constraint("Vertical", 23, 2, 24, 2),
    Sketcher.Constraint("Vertical", 22, 2, 25, 2),
    Sketcher.Constraint("Vertical", 27, 2, 28, 2),
    Sketcher.Constraint("Vertical", 26, 2, 29, 2),
    Sketcher.Constraint("Vertical", 31, 2, 32, 2),
    Sketcher.Constraint("Vertical", 30, 2, 33, 2),
    Sketcher.Constraint("Vertical", 35, 2, 36, 2),
    Sketcher.Constraint("Vertical", 34, 2, 37, 2),
    Sketcher.Constraint("Vertical", 39, 2, 40, 2),
    Sketcher.Constraint("Vertical", 38, 2, 41, 2),
    Sketcher.Constraint("Vertical", 43, 2, 44, 2),
    Sketcher.Constraint("Vertical", 42, 2, 45, 2),
    Sketcher.Constraint("Equal", 2, 4),
    Sketcher.Constraint("Equal", 6, 8),
    Sketcher.Constraint("Equal", 10, 12),
    Sketcher.Constraint("Equal", 14, 16),
    Sketcher.Constraint("Equal", 18, 20),
    Sketcher.Constraint("Equal", 22, 24),
    Sketcher.Constraint("Equal", 26, 28),
    Sketcher.Constraint("Equal", 30, 32),
    Sketcher.Constraint("Equal", 34, 36),
    Sketcher.Constraint("Equal", 38, 40),
    Sketcher.Constraint("Equal", 42, 44),
    Sketcher.Constraint("DistanceX", 1, 1, 1, 2, Q("0.5 mm")),
    Sketcher.Constraint("DistanceY", 4, 2, 0, 2, Q("2 mm")),
    Sketcher.Constraint("DistanceY", 0, 2, 8, 2, Q("2 mm")),
    Sketcher.Constraint("DistanceY", 8, 2, 12, 2, Q("2 mm")),
    Sketcher.Constraint("DistanceY", 12, 2, 16, 2, Q("2 mm")),
    Sketcher.Constraint("DistanceY", 16, 2, 20, 2, Q("2 mm")),
    Sketcher.Constraint("DistanceY", 20, 2, 24, 2, Q("2 mm")),
    Sketcher.Constraint("DistanceY", 24, 2, 28, 2, Q("2 mm")),
    Sketcher.Constraint("DistanceY", 28, 2, 32, 2, Q("2 mm")),
    Sketcher.Constraint("DistanceY", 32, 2, 36, 2, Q("2 mm")),
    Sketcher.Constraint("DistanceY", 36, 2, 40, 2, Q("2 mm")),
    Sketcher.Constraint("DistanceY", 40, 2, 44, 2, Q("2 mm")),
    Sketcher.Constraint("DistanceY", 2, 2, -1, 1, Q("21.25 mm")),
    Sketcher.Constraint("DistanceX", -1, 1, 0, 2, Q("0.951899 mm")),
    Sketcher.Constraint("DistanceY", 0, 1, 0, 2, Q("0.475667 mm")),
])
sketch4.setExpression("Constraints[129]", "Params.sketch4_width")
pocket2 = body.newObject("PartDesign::Pocket", "Pocket001")
pocket2.Profile = sketch4
pocket2.setExpression("Length", "Params.pocket2_length")
pocket2.Reversed = True

# Sketch on YZ plane
sketch5 = body.newObject("Sketcher::SketchObject", "Sketch004")
sketch5.AttachmentSupport = (doc.getObject("YZ_Plane"), [""])
sketch5.MapMode = "FlatFace"
sketch5.AttachmentOffset = App.Placement(App.Vector(0, 0, 1.457554), App.Rotation())
sketch5.addGeometry([
    Part.LineSegment(App.Vector(-4.3, -22.75, 0), App.Vector(-4.5, -22.75, 0)),  # 0
    Part.LineSegment(App.Vector(-4.5, -22.75, 0), App.Vector(-4.5, -23.25, 0)),  # 1
    Part.LineSegment(App.Vector(-4.5, -23.25, 0), App.Vector(-4.3, -23.25, 0)),  # 2
    Part.LineSegment(App.Vector(-4.3, -23.25, 0), App.Vector(-4.3, -22.75, 0)),  # 3
    Part.LineSegment(App.Vector(-4.3, -18.75, 0), App.Vector(-4.5, -18.75, 0)),  # 4
    Part.LineSegment(App.Vector(-4.5, -18.75, 0), App.Vector(-4.5, -19.25, 0)),  # 5
    Part.LineSegment(App.Vector(-4.5, -19.25, 0), App.Vector(-4.3, -19.25, 0)),  # 6
    Part.LineSegment(App.Vector(-4.3, -19.25, 0), App.Vector(-4.3, -18.75, 0)),  # 7
    Part.LineSegment(App.Vector(-4.3, -14.75, 0), App.Vector(-4.5, -14.75, 0)),  # 8
    Part.LineSegment(App.Vector(-4.5, -14.75, 0), App.Vector(-4.5, -15.25, 0)),  # 9
    Part.LineSegment(App.Vector(-4.5, -15.25, 0), App.Vector(-4.3, -15.25, 0)),  # 10
    Part.LineSegment(App.Vector(-4.3, -15.25, 0), App.Vector(-4.3, -14.75, 0)),  # 11
    Part.LineSegment(App.Vector(-4.3, -10.75, 0), App.Vector(-4.5, -10.75, 0)),  # 12
    Part.LineSegment(App.Vector(-4.5, -10.75, 0), App.Vector(-4.5, -11.25, 0)),  # 13
    Part.LineSegment(App.Vector(-4.5, -11.25, 0), App.Vector(-4.3, -11.25, 0)),  # 14
    Part.LineSegment(App.Vector(-4.3, -11.25, 0), App.Vector(-4.3, -10.75, 0)),  # 15
    Part.LineSegment(App.Vector(-4.3, -6.75, 0), App.Vector(-4.5, -6.75, 0)),  # 16
    Part.LineSegment(App.Vector(-4.5, -6.75, 0), App.Vector(-4.5, -7.25, 0)),  # 17
    Part.LineSegment(App.Vector(-4.5, -7.25, 0), App.Vector(-4.3, -7.25, 0)),  # 18
    Part.LineSegment(App.Vector(-4.3, -7.25, 0), App.Vector(-4.3, -6.75, 0)),  # 19
    Part.LineSegment(App.Vector(-4.3, -2.75, 0), App.Vector(-4.5, -2.75, 0)),  # 20
    Part.LineSegment(App.Vector(-4.5, -2.75, 0), App.Vector(-4.5, -3.25, 0)),  # 21
    Part.LineSegment(App.Vector(-4.5, -3.25, 0), App.Vector(-4.3, -3.25, 0)),  # 22
    Part.LineSegment(App.Vector(-4.3, -3.25, 0), App.Vector(-4.3, -2.75, 0)),  # 23
], False)
sketch5.addConstraint([
    Sketcher.Constraint("Coincident", 0, 2, 1, 1),
    Sketcher.Constraint("Coincident", 1, 2, 2, 1),
    Sketcher.Constraint("Coincident", 2, 2, 3, 1),
    Sketcher.Constraint("Coincident", 3, 2, 0, 1),
    Sketcher.Constraint("Coincident", 4, 2, 5, 1),
    Sketcher.Constraint("Coincident", 5, 2, 6, 1),
    Sketcher.Constraint("Coincident", 6, 2, 7, 1),
    Sketcher.Constraint("Coincident", 7, 2, 4, 1),
    Sketcher.Constraint("Coincident", 8, 2, 9, 1),
    Sketcher.Constraint("Coincident", 9, 2, 10, 1),
    Sketcher.Constraint("Coincident", 10, 2, 11, 1),
    Sketcher.Constraint("Coincident", 11, 2, 8, 1),
    Sketcher.Constraint("Coincident", 12, 2, 13, 1),
    Sketcher.Constraint("Coincident", 13, 2, 14, 1),
    Sketcher.Constraint("Coincident", 14, 2, 15, 1),
    Sketcher.Constraint("Coincident", 15, 2, 12, 1),
    Sketcher.Constraint("Coincident", 16, 2, 17, 1),
    Sketcher.Constraint("Coincident", 17, 2, 18, 1),
    Sketcher.Constraint("Coincident", 18, 2, 19, 1),
    Sketcher.Constraint("Coincident", 19, 2, 16, 1),
    Sketcher.Constraint("Coincident", 20, 2, 21, 1),
    Sketcher.Constraint("Coincident", 21, 2, 22, 1),
    Sketcher.Constraint("Coincident", 22, 2, 23, 1),
    Sketcher.Constraint("Coincident", 23, 2, 20, 1),
    Sketcher.Constraint("Horizontal", 0),
    Sketcher.Constraint("Vertical", 1),
    Sketcher.Constraint("Horizontal", 2),
    Sketcher.Constraint("Vertical", 3),
    Sketcher.Constraint("Horizontal", 4),
    Sketcher.Constraint("Vertical", 5),
    Sketcher.Constraint("Horizontal", 6),
    Sketcher.Constraint("Vertical", 7),
    Sketcher.Constraint("Horizontal", 8),
    Sketcher.Constraint("Vertical", 9),
    Sketcher.Constraint("Horizontal", 10),
    Sketcher.Constraint("Vertical", 11),
    Sketcher.Constraint("Horizontal", 12),
    Sketcher.Constraint("Vertical", 13),
    Sketcher.Constraint("Horizontal", 14),
    Sketcher.Constraint("Vertical", 15),
    Sketcher.Constraint("Horizontal", 16),
    Sketcher.Constraint("Vertical", 17),
    Sketcher.Constraint("Horizontal", 18),
    Sketcher.Constraint("Vertical", 19),
    Sketcher.Constraint("Horizontal", 20),
    Sketcher.Constraint("Vertical", 21),
    Sketcher.Constraint("Horizontal", 22),
    Sketcher.Constraint("Vertical", 23),
    Sketcher.Constraint("Vertical", 1, 2, 4, 2),
    Sketcher.Constraint("Vertical", 3, 2, 6, 2),
    Sketcher.Constraint("Vertical", 5, 2, 8, 2),
    Sketcher.Constraint("Vertical", 7, 2, 10, 2),
    Sketcher.Constraint("Vertical", 9, 2, 12, 2),
    Sketcher.Constraint("Vertical", 11, 2, 14, 2),
    Sketcher.Constraint("Vertical", 13, 2, 16, 2),
    Sketcher.Constraint("Vertical", 15, 2, 18, 2),
    Sketcher.Constraint("Vertical", 17, 2, 20, 2),
    Sketcher.Constraint("Vertical", 19, 2, 22, 2),
    Sketcher.Constraint("Equal", 3, 5),
    Sketcher.Constraint("Equal", 7, 9),
    Sketcher.Constraint("Equal", 11, 13),
    Sketcher.Constraint("Equal", 15, 17),
    Sketcher.Constraint("Equal", 19, 21),
    Sketcher.Constraint("DistanceX", 0, 2, 0, 1, Q("0.2 mm")),
    Sketcher.Constraint("DistanceY", 1, 2, 1, 1, Q("0.5 mm")),
    Sketcher.Constraint("DistanceY", 0, 2, 4, 2, Q("4 mm")),
    Sketcher.Constraint("DistanceY", 4, 2, 8, 2, Q("4 mm")),
    Sketcher.Constraint("DistanceY", 8, 2, 12, 2, Q("4 mm")),
    Sketcher.Constraint("DistanceY", 12, 2, 16, 2, Q("4 mm")),
    Sketcher.Constraint("DistanceY", 16, 2, 20, 2, Q("4 mm")),
    Sketcher.Constraint("DistanceX", 0, 2, -1, 1, Q("4.5 mm")),
    Sketcher.Constraint("DistanceY", 0, 2, -1, 1, Q("22.75 mm")),
])
sketch5.setExpression("Constraints[63]", "Params.sketch5_width")
sketch5.setExpression("Constraints[64]", "Params.sketch5_height")
pad3 = body.newObject("PartDesign::Pad", "Pad002")
pad3.Profile = sketch5
pad3.setExpression("Length", "Params.pad3_length")
body2 = doc.addObject("PartDesign::Body", "Body001")

# Sketch on YZ plane
sketch6 = body2.newObject("Sketcher::SketchObject", "Sketch005")
sketch6.AttachmentSupport = (doc.getObject("YZ_Plane001"), [""])
sketch6.MapMode = "FlatFace"
sketch6.AttachmentOffset = App.Placement(App.Vector(0, 0, 0.957554), App.Rotation())
sketch6.addGeometry([
    Part.LineSegment(App.Vector(-4.3, -1.25, 0), App.Vector(-4.5, -1.25, 0)),
    Part.LineSegment(App.Vector(-4.5, -1.25, 0), App.Vector(-4.5, -0.75, 0)),
    Part.LineSegment(App.Vector(-4.5, -0.75, 0), App.Vector(-4.3, -0.75, 0)),
    Part.LineSegment(App.Vector(-4.3, -0.75, 0), App.Vector(-4.3, -1.25, 0)),
], False)
sketch6.addConstraint([
    Sketcher.Constraint("Coincident", 0, 2, 1, 1),
    Sketcher.Constraint("Coincident", 1, 2, 2, 1),
    Sketcher.Constraint("Coincident", 2, 2, 3, 1),
    Sketcher.Constraint("Coincident", 3, 2, 0, 1),
    Sketcher.Constraint("Horizontal", 0),
    Sketcher.Constraint("Vertical", 1),
    Sketcher.Constraint("Horizontal", 2),
    Sketcher.Constraint("Vertical", 3),
    Sketcher.Constraint("DistanceX", 0, 2, 0, 1, Q("0.2 mm")),
    Sketcher.Constraint("DistanceY", 1, 1, 1, 2, Q("0.5 mm")),
    Sketcher.Constraint("DistanceX", 0, 2, -1, 1, Q("4.5 mm")),
    Sketcher.Constraint("DistanceY", 0, 2, -1, 1, Q("1.25 mm")),
])
sketch6.setExpression("Constraints[8]", "Params.sketch6_width")
sketch6.setExpression("Constraints[9]", "Params.sketch6_height")
pad4 = body2.newObject("PartDesign::Pad", "Pad003")
pad4.Profile = sketch6
pad4.setExpression("Length", "Params.pad4_length")
pad4.Reversed = True
body3 = doc.addObject("PartDesign::Body", "Body002")

# Sketch on YZ plane
sketch7 = body3.newObject("Sketcher::SketchObject", "Sketch006")
sketch7.AttachmentSupport = (doc.getObject("YZ_Plane002"), [""])
sketch7.MapMode = "FlatFace"
sketch7.AttachmentOffset = App.Placement(App.Vector(0, 0, 0.957554), App.Rotation())
sketch7.addGeometry([
    Part.LineSegment(App.Vector(-4.3, -5.25, 0), App.Vector(-4.5, -5.25, 0)),
    Part.LineSegment(App.Vector(-4.5, -5.25, 0), App.Vector(-4.5, -4.75, 0)),
    Part.LineSegment(App.Vector(-4.5, -4.75, 0), App.Vector(-4.3, -4.75, 0)),
    Part.LineSegment(App.Vector(-4.3, -4.75, 0), App.Vector(-4.3, -5.25, 0)),
], False)
sketch7.addConstraint([
    Sketcher.Constraint("Coincident", 0, 2, 1, 1),
    Sketcher.Constraint("Coincident", 1, 2, 2, 1),
    Sketcher.Constraint("Coincident", 2, 2, 3, 1),
    Sketcher.Constraint("Coincident", 3, 2, 0, 1),
    Sketcher.Constraint("Horizontal", 0),
    Sketcher.Constraint("Vertical", 1),
    Sketcher.Constraint("Horizontal", 2),
    Sketcher.Constraint("Vertical", 3),
    Sketcher.Constraint("DistanceX", 0, 2, 0, 1, Q("0.2 mm")),
    Sketcher.Constraint("DistanceY", 1, 1, 1, 2, Q("0.5 mm")),
    Sketcher.Constraint("DistanceX", 0, 2, -1, 1, Q("4.5 mm")),
    Sketcher.Constraint("DistanceY", 0, 2, -1, 1, Q("5.25 mm")),
])
sketch7.setExpression("Constraints[8]", "Params.sketch7_width")
sketch7.setExpression("Constraints[9]", "Params.sketch7_height")
pad5 = body3.newObject("PartDesign::Pad", "Pad004")
pad5.Profile = sketch7
pad5.setExpression("Length", "Params.pad5_length")
pad5.Reversed = True
body4 = doc.addObject("PartDesign::Body", "Body003")

# Sketch on YZ plane
sketch8 = body4.newObject("Sketcher::SketchObject", "Sketch007")
sketch8.AttachmentSupport = (doc.getObject("YZ_Plane003"), [""])
sketch8.MapMode = "FlatFace"
sketch8.AttachmentOffset = App.Placement(App.Vector(0, 0, 0.957554), App.Rotation())
sketch8.addGeometry([
    Part.LineSegment(App.Vector(-4.3, -9.25, 0), App.Vector(-4.5, -9.25, 0)),
    Part.LineSegment(App.Vector(-4.5, -9.25, 0), App.Vector(-4.5, -8.75, 0)),
    Part.LineSegment(App.Vector(-4.5, -8.75, 0), App.Vector(-4.3, -8.75, 0)),
    Part.LineSegment(App.Vector(-4.3, -8.75, 0), App.Vector(-4.3, -9.25, 0)),
], False)
sketch8.addConstraint([
    Sketcher.Constraint("Coincident", 0, 2, 1, 1),
    Sketcher.Constraint("Coincident", 1, 2, 2, 1),
    Sketcher.Constraint("Coincident", 2, 2, 3, 1),
    Sketcher.Constraint("Coincident", 3, 2, 0, 1),
    Sketcher.Constraint("Horizontal", 0),
    Sketcher.Constraint("Vertical", 1),
    Sketcher.Constraint("Horizontal", 2),
    Sketcher.Constraint("Vertical", 3),
    Sketcher.Constraint("DistanceX", 0, 2, 0, 1, Q("0.2 mm")),
    Sketcher.Constraint("DistanceY", 1, 1, 1, 2, Q("0.5 mm")),
    Sketcher.Constraint("DistanceX", 0, 2, -1, 1, Q("4.5 mm")),
    Sketcher.Constraint("DistanceY", 0, 2, -1, 1, Q("9.25 mm")),
])
sketch8.setExpression("Constraints[8]", "Params.sketch8_width")
sketch8.setExpression("Constraints[9]", "Params.sketch8_height")
pad6 = body4.newObject("PartDesign::Pad", "Pad005")
pad6.Profile = sketch8
pad6.setExpression("Length", "Params.pad6_length")
pad6.Reversed = True
body5 = doc.addObject("PartDesign::Body", "Body004")

# Sketch on YZ plane
sketch9 = body5.newObject("Sketcher::SketchObject", "Sketch008")
sketch9.AttachmentSupport = (doc.getObject("YZ_Plane004"), [""])
sketch9.MapMode = "FlatFace"
sketch9.AttachmentOffset = App.Placement(App.Vector(0, 0, 0.957554), App.Rotation())
sketch9.addGeometry([
    Part.LineSegment(App.Vector(-4.3, -13.25, 0), App.Vector(-4.5, -13.25, 0)),
    Part.LineSegment(App.Vector(-4.5, -13.25, 0), App.Vector(-4.5, -12.75, 0)),
    Part.LineSegment(App.Vector(-4.5, -12.75, 0), App.Vector(-4.3, -12.75, 0)),
    Part.LineSegment(App.Vector(-4.3, -12.75, 0), App.Vector(-4.3, -13.25, 0)),
], False)
sketch9.addConstraint([
    Sketcher.Constraint("Coincident", 0, 2, 1, 1),
    Sketcher.Constraint("Coincident", 1, 2, 2, 1),
    Sketcher.Constraint("Coincident", 2, 2, 3, 1),
    Sketcher.Constraint("Coincident", 3, 2, 0, 1),
    Sketcher.Constraint("Horizontal", 0),
    Sketcher.Constraint("Vertical", 1),
    Sketcher.Constraint("Horizontal", 2),
    Sketcher.Constraint("Vertical", 3),
    Sketcher.Constraint("DistanceX", 0, 2, 0, 1, Q("0.2 mm")),
    Sketcher.Constraint("DistanceY", 1, 1, 1, 2, Q("0.5 mm")),
    Sketcher.Constraint("DistanceX", 0, 2, -1, 1, Q("4.5 mm")),
    Sketcher.Constraint("DistanceY", 0, 2, -1, 1, Q("13.25 mm")),
])
sketch9.setExpression("Constraints[8]", "Params.sketch9_width")
sketch9.setExpression("Constraints[9]", "Params.sketch9_height")
pad7 = body5.newObject("PartDesign::Pad", "Pad006")
pad7.Profile = sketch9
pad7.setExpression("Length", "Params.pad7_length")
pad7.Reversed = True
body6 = doc.addObject("PartDesign::Body", "Body005")

# Sketch on YZ plane
sketch10 = body6.newObject("Sketcher::SketchObject", "Sketch009")
sketch10.AttachmentSupport = (doc.getObject("YZ_Plane005"), [""])
sketch10.MapMode = "FlatFace"
sketch10.AttachmentOffset = App.Placement(App.Vector(0, 0, 0.957554), App.Rotation())
sketch10.addGeometry([
    Part.LineSegment(App.Vector(-4.3, -17.25, 0), App.Vector(-4.5, -17.25, 0)),
    Part.LineSegment(App.Vector(-4.5, -17.25, 0), App.Vector(-4.5, -16.75, 0)),
    Part.LineSegment(App.Vector(-4.5, -16.75, 0), App.Vector(-4.3, -16.75, 0)),
    Part.LineSegment(App.Vector(-4.3, -16.75, 0), App.Vector(-4.3, -17.25, 0)),
], False)
sketch10.addConstraint([
    Sketcher.Constraint("Coincident", 0, 2, 1, 1),
    Sketcher.Constraint("Coincident", 1, 2, 2, 1),
    Sketcher.Constraint("Coincident", 2, 2, 3, 1),
    Sketcher.Constraint("Coincident", 3, 2, 0, 1),
    Sketcher.Constraint("Horizontal", 0),
    Sketcher.Constraint("Vertical", 1),
    Sketcher.Constraint("Horizontal", 2),
    Sketcher.Constraint("Vertical", 3),
    Sketcher.Constraint("DistanceX", 0, 2, 0, 1, Q("0.2 mm")),
    Sketcher.Constraint("DistanceY", 1, 1, 1, 2, Q("0.5 mm")),
    Sketcher.Constraint("DistanceX", 0, 2, -1, 1, Q("4.5 mm")),
    Sketcher.Constraint("DistanceY", 0, 2, -1, 1, Q("17.25 mm")),
])
sketch10.setExpression("Constraints[8]", "Params.sketch10_width")
sketch10.setExpression("Constraints[9]", "Params.sketch10_height")
pad8 = body6.newObject("PartDesign::Pad", "Pad007")
pad8.Profile = sketch10
pad8.setExpression("Length", "Params.pad8_length")
pad8.Reversed = True
body7 = doc.addObject("PartDesign::Body", "Body006")

# Sketch on YZ plane
sketch11 = body7.newObject("Sketcher::SketchObject", "Sketch010")
sketch11.AttachmentSupport = (doc.getObject("YZ_Plane006"), [""])
sketch11.MapMode = "FlatFace"
sketch11.AttachmentOffset = App.Placement(App.Vector(0, 0, 0.957554), App.Rotation())
sketch11.addGeometry([
    Part.LineSegment(App.Vector(-4.3, -21.25, 0), App.Vector(-4.5, -21.25, 0)),
    Part.LineSegment(App.Vector(-4.5, -21.25, 0), App.Vector(-4.5, -20.75, 0)),
    Part.LineSegment(App.Vector(-4.5, -20.75, 0), App.Vector(-4.3, -20.75, 0)),
    Part.LineSegment(App.Vector(-4.3, -20.75, 0), App.Vector(-4.3, -21.25, 0)),
], False)
sketch11.addConstraint([
    Sketcher.Constraint("Coincident", 0, 2, 1, 1),
    Sketcher.Constraint("Coincident", 1, 2, 2, 1),
    Sketcher.Constraint("Coincident", 2, 2, 3, 1),
    Sketcher.Constraint("Coincident", 3, 2, 0, 1),
    Sketcher.Constraint("Horizontal", 0),
    Sketcher.Constraint("Vertical", 1),
    Sketcher.Constraint("Horizontal", 2),
    Sketcher.Constraint("Vertical", 3),
    Sketcher.Constraint("DistanceX", 0, 2, 0, 1, Q("0.2 mm")),
    Sketcher.Constraint("DistanceY", 1, 1, 1, 2, Q("0.5 mm")),
    Sketcher.Constraint("DistanceX", 0, 2, -1, 1, Q("4.5 mm")),
    Sketcher.Constraint("DistanceY", 0, 2, -1, 1, Q("21.25 mm")),
])
sketch11.setExpression("Constraints[8]", "Params.sketch11_width")
sketch11.setExpression("Constraints[9]", "Params.sketch11_height")
pad9 = body7.newObject("PartDesign::Pad", "Pad008")
pad9.Profile = sketch11
pad9.setExpression("Length", "Params.pad9_length")
pad9.Reversed = True

doc.recompute()
